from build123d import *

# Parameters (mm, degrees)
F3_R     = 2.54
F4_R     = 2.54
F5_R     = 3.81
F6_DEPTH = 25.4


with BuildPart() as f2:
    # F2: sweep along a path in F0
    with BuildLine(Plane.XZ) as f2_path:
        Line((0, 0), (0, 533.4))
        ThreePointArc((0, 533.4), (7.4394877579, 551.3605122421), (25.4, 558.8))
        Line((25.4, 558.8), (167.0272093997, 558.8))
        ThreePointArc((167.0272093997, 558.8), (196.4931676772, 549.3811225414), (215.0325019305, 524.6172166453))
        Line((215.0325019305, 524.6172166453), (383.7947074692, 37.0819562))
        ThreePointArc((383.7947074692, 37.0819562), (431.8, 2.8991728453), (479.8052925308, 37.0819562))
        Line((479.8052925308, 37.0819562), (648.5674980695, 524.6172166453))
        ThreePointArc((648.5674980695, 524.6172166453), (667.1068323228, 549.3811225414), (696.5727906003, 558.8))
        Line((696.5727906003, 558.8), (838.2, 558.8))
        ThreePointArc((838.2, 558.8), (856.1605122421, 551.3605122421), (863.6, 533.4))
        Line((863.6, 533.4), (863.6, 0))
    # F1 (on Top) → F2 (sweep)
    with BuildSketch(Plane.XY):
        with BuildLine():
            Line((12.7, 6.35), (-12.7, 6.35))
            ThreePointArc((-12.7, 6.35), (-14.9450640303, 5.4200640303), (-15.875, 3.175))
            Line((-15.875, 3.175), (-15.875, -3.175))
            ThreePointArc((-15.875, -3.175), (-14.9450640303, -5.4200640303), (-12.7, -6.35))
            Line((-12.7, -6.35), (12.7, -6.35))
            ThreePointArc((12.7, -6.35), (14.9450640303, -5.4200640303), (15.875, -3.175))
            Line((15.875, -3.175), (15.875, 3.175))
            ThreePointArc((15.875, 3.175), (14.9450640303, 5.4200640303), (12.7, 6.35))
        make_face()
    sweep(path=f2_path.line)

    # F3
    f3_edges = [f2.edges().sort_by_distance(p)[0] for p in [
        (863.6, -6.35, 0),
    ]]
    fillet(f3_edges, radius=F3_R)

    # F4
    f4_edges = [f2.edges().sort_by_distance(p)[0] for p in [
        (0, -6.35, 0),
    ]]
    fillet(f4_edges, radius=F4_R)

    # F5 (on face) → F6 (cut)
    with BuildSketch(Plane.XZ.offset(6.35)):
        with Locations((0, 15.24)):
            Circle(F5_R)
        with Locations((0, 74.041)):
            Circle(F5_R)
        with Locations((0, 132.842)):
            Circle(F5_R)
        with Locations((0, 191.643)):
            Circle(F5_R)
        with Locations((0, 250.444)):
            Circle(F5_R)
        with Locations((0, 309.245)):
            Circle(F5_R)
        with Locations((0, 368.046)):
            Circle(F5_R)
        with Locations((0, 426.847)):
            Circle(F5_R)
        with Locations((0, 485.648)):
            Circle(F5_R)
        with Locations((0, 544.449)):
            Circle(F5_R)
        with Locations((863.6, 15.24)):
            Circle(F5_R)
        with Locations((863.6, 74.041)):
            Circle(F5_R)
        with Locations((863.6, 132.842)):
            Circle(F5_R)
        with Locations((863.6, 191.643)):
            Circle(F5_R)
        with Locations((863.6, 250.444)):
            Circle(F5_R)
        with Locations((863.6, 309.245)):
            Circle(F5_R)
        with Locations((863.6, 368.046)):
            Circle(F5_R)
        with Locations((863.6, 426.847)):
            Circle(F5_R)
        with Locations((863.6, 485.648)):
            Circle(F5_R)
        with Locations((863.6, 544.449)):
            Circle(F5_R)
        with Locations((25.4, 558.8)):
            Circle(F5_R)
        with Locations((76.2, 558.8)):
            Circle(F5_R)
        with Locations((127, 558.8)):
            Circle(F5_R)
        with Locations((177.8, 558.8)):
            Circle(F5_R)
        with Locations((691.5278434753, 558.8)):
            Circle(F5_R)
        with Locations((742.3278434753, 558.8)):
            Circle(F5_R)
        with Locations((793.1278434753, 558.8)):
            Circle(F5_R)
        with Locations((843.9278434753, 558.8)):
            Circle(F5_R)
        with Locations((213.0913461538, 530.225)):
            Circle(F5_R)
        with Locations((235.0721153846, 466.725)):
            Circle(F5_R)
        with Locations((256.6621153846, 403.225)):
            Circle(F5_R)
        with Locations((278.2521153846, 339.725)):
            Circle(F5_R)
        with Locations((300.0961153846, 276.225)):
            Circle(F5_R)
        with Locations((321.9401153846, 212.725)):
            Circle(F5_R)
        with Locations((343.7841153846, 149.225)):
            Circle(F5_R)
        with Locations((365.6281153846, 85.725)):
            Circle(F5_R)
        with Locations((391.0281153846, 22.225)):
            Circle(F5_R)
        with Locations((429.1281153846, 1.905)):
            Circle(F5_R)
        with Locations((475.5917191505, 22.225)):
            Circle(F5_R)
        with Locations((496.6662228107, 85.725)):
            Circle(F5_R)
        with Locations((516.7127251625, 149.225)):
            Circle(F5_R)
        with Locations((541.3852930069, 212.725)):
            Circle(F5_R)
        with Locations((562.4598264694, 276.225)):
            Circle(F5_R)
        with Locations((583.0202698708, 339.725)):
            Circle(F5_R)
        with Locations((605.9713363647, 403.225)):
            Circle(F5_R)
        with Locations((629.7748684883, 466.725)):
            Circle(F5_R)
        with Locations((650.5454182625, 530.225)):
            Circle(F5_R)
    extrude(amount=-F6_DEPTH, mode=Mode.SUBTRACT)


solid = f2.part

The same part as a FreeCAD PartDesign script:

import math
import FreeCAD as App
import Part
import Sketcher
Q = App.Units.Quantity


def edges_at(feature, points):
    """Names of the edges that pass closest to the given points."""
    edges = feature.Shape.Edges
    near = lambda p: min(range(len(edges)), key=lambda i: edges[i].distToShape(Part.Vertex(*p))[0])
    return sorted({f"Edge{near(p) + 1}" for p in points})

doc = App.newDocument("Part")
params = doc.addObject("Spreadsheet::Sheet", "Params")
for row, (alias, value) in enumerate([
    ("sketch1_width", "1 in"),
    ("sketch1_radius", "0.125 in"),
    ("sketch1_height", "0.25 in"),
    ("sketch2_radius", "1 in"),
    ("sketch2_radius2", "2 in"),
    ("sketch2_radius3", "2 in"),
    ("sketch2_radius4", "2 in"),
    ("sketch2_radius5", "1 in"),
    ("fillet_radius", "0.1 in"),
    ("fillet2_radius", "0.1 in"),
    ("sketch3_diameter", "0.3 in"),
    ("pocket1_length", "1 in"),
], start=1):
    params.set(f"A{row}", alias)
    params.set(f"B{row}", "=" + value)
    params.setAlias(f"B{row}", alias)

body = doc.addObject("PartDesign::Body", "Body")

# Sketch on XY plane
sketch1 = body.newObject("Sketcher::SketchObject", "Sketch")
sketch1.AttachmentSupport = (doc.getObject("XY_Plane"), [""])
sketch1.MapMode = "FlatFace"
sketch1.addGeometry(Part.LineSegment(App.Vector(12.7, 6.35, 0), App.Vector(-12.7, 6.35, 0)), False)
sketch1.addGeometry(Part.ArcOfCircle(Part.Circle(App.Vector(-12.7, 3.175, 0), App.Vector(0, 0, 1), 3.175), math.radians(90), math.radians(180)), False)
sketch1.addGeometry(Part.LineSegment(App.Vector(-15.875, 3.175, 0), App.Vector(-15.875, -3.175, 0)), False)
sketch1.addGeometry(Part.ArcOfCircle(Part.Circle(App.Vector(-12.7, -3.175, 0), App.Vector(0, 0, 1), 3.175), math.radians(180), math.radians(270)), False)
sketch1.addGeometry(Part.LineSegment(App.Vector(-12.7, -6.35, 0), App.Vector(12.7, -6.35, 0)), False)
sketch1.addGeometry(Part.ArcOfCircle(Part.Circle(App.Vector(12.7, -3.175, 0), App.Vector(0, 0, 1), 3.175), math.radians(-90), math.radians(0)), False)
sketch1.addGeometry(Part.LineSegment(App.Vector(15.875, -3.175, 0), App.Vector(15.875, 3.175, 0)), False)
sketch1.addGeometry(Part.ArcOfCircle(Part.Circle(App.Vector(12.7, 3.175, 0), App.Vector(0, 0, 1), 3.175), math.radians(0), math.radians(90)), False)
sketch1.addConstraint(Sketcher.Constraint("Tangent", 0, 2, 1, 1))
sketch1.addConstraint(Sketcher.Constraint("Tangent", 1, 2, 2, 1))
sketch1.addConstraint(Sketcher.Constraint("Tangent", 2, 2, 3, 1))
sketch1.addConstraint(Sketcher.Constraint("Tangent", 3, 2, 4, 1))
sketch1.addConstraint(Sketcher.Constraint("Tangent", 4, 2, 5, 1))
sketch1.addConstraint(Sketcher.Constraint("Tangent", 5, 2, 6, 1))
sketch1.addConstraint(Sketcher.Constraint("Tangent", 6, 2, 7, 1))
sketch1.addConstraint(Sketcher.Constraint("Tangent", 7, 2, 0, 1))
sketch1.addConstraint(Sketcher.Constraint("Horizontal", 0))
sketch1.addConstraint(Sketcher.Constraint("Vertical", 2))
sketch1.addConstraint(Sketcher.Constraint("Horizontal", 4))
sketch1.addConstraint(Sketcher.Constraint("Vertical", 6))
sketch1.addConstraint(Sketcher.Constraint("Equal", 1, 3))
sketch1.addConstraint(Sketcher.Constraint("Equal", 3, 5))
sketch1.addConstraint(Sketcher.Constraint("Equal", 5, 7))
sketch1.addConstraint(Sketcher.Constraint("Symmetric", 1, 3, 5, 3, -1, 1))
sketch1.addConstraint(Sketcher.Constraint("DistanceX", 0, 2, 0, 1, Q("1 in")))
sketch1.addConstraint(Sketcher.Constraint("Radius", 1, Q("0.125 in")))
sketch1.addConstraint(Sketcher.Constraint("DistanceY", 2, 2, 2, 1, Q("0.25 in")))
sketch1.setExpression("Constraints[16]", "Params.sketch1_width")
sketch1.setExpression("Constraints[17]", "Params.sketch1_radius")
sketch1.setExpression("Constraints[18]", "Params.sketch1_height")

# Sketch on XZ plane
sketch2 = body.newObject("Sketcher::SketchObject", "Sketch001")
sketch2.AttachmentSupport = (doc.getObject("XZ_Plane"), [""])
sketch2.MapMode = "FlatFace"
sketch2.addGeometry(Part.LineSegment(App.Vector(0, 0, 0), App.Vector(0, 533.4, 0)), False)
sketch2.addGeometry(Part.ArcOfCircle(Part.Circle(App.Vector(25.4, 533.4, 0), App.Vector(0, 0, 1), 25.4), math.radians(90), math.radians(180)), False)
sketch2.addGeometry(Part.LineSegment(App.Vector(25.4, 558.8, 0), App.Vector(167.027209, 558.8, 0)), False)
sketch2.addGeometry(Part.ArcOfCircle(Part.Circle(App.Vector(167.027209, 508, 0), App.Vector(0, 0, 1), 50.8), math.radians(19.093492), math.radians(90)), False)
sketch2.addGeometry(Part.LineSegment(App.Vector(215.032502, 524.617217, 0), App.Vector(383.794707, 37.081956, 0)), False)
sketch2.addGeometry(Part.ArcOfCircle(Part.Circle(App.Vector(431.8, 53.699173, 0), App.Vector(0, 0, 1), 50.8), math.radians(-160.906508), math.radians(-19.093492)), False)
sketch2.addGeometry(Part.LineSegment(App.Vector(479.805293, 37.081956, 0), App.Vector(648.567498, 524.617217, 0)), False)
sketch2.addGeometry(Part.ArcOfCircle(Part.Circle(App.Vector(696.572791, 508, 0), App.Vector(0, 0, 1), 50.8), math.radians(90), math.radians(160.906508)), False)
sketch2.addGeometry(Part.LineSegment(App.Vector(696.572791, 558.8, 0), App.Vector(838.2, 558.8, 0)), False)
sketch2.addGeometry(Part.ArcOfCircle(Part.Circle(App.Vector(838.2, 533.4, 0), App.Vector(0, 0, 1), 25.4), math.radians(0), math.radians(90)), False)
sketch2.addGeometry(Part.LineSegment(App.Vector(863.6, 533.4, 0), App.Vector(863.6, 0, 0)), False)
sketch2.addConstraint(Sketcher.Constraint("Coincident", 0, 2, 1, 2))
sketch2.addConstraint(Sketcher.Constraint("Coincident", 1, 1, 2, 1))
sketch2.addConstraint(Sketcher.Constraint("Coincident", 2, 2, 3, 2))
sketch2.addConstraint(Sketcher.Constraint("Coincident", 3, 1, 4, 1))
sketch2.addConstraint(Sketcher.Constraint("Coincident", 4, 2, 5, 1))
sketch2.addConstraint(Sketcher.Constraint("Coincident", 5, 2, 6, 1))
sketch2.addConstraint(Sketcher.Constraint("Coincident", 6, 2, 7, 2))
sketch2.addConstraint(Sketcher.Constraint("Coincident", 7, 1, 8, 1))
sketch2.addConstraint(Sketcher.Constraint("Coincident", 8, 2, 9, 2))
sketch2.addConstraint(Sketcher.Constraint("Coincident", 9, 1, 10, 1))
sketch2.addConstraint(Sketcher.Constraint("Vertical", 0))
sketch2.addConstraint(Sketcher.Constraint("Horizontal", 2))
sketch2.addConstraint(Sketcher.Constraint("Horizontal", 8))
sketch2.addConstraint(Sketcher.Constraint("Vertical", 10))
sketch2.addConstraint(Sketcher.Constraint("Coincident", 0, 1, -1, 1))
sketch2.addConstraint(Sketcher.Constraint("PointOnObject", 10, 2, -1))
sketch2.addConstraint(Sketcher.Constraint("Radius", 1, Q("1 in")))
sketch2.addConstraint(Sketcher.Constraint("Radius", 3, Q("2 in")))
sketch2.addConstraint(Sketcher.Constraint("Radius", 5, Q("2 in")))
sketch2.addConstraint(Sketcher.Constraint("Radius", 7, Q("2 in")))
sketch2.addConstraint(Sketcher.Constraint("Radius", 9, Q("1 in")))
sketch2.addConstraint(Sketcher.Constraint("DistanceY", 0, 1, 0, 2, Q("21 in")))
sketch2.addConstraint(Sketcher.Constraint("DistanceY", 10, 2, 10, 1, Q("21 in")))
sketch2.addConstraint(Sketcher.Constraint("DistanceY", -1, 1, 1, 3, Q("21 in")))
sketch2.addConstraint(Sketcher.Constraint("DistanceX", -1, 1, 5, 3, Q("17 in")))
sketch2.addConstraint(Sketcher.Constraint("DistanceY", -1, 1, 7, 3, Q("20 in")))
sketch2.addConstraint(Sketcher.Constraint("DistanceX", -1, 1, 9, 3, Q("33 in")))
sketch2.addConstraint(Sketcher.Constraint("DistanceX", -1, 1, 1, 1, Q("1 in")))
sketch2.addConstraint(Sketcher.Constraint("DistanceX", -1, 1, 8, 2, Q("33 in")))
sketch2.addConstraint(Sketcher.Constraint("DistanceX", 2, 1, 2, 2, Q("141.627209 mm")))
sketch2.addConstraint(Sketcher.Constraint("DistanceX", 8, 1, 8, 2, Q("141.627209 mm")))
sketch2.addConstraint(Sketcher.Constraint("DistanceX", -1, 1, 3, 1, Q("215.032502 mm")))
sketch2.addConstraint(Sketcher.Constraint("DistanceX", -1, 1, 6, 2, Q("648.567498 mm")))
sketch2.addConstraint(Sketcher.Constraint("DistanceX", 3, 3, 4, 2, Q("216.767498 mm")))
sketch2.addConstraint(Sketcher.Constraint("DistanceX", 2, 2, 4, 2, Q("216.767498 mm")))
sketch2.addConstraint(Sketcher.Constraint("DistanceX", 5, 2, 7, 3, Q("216.767498 mm")))
sketch2.addConstraint(Sketcher.Constraint("Distance", 4, Q("515.917932 mm")))
sketch2.addConstraint(Sketcher.Constraint("Distance", 6, Q("515.917932 mm")))
sketch2.setExpression("Constraints[16]", "Params.sketch2_radius")
sketch2.setExpression("Constraints[17]", "Params.sketch2_radius2")
sketch2.setExpression("Constraints[18]", "Params.sketch2_radius3")
sketch2.setExpression("Constraints[19]", "Params.sketch2_radius4")
sketch2.setExpression("Constraints[20]", "Params.sketch2_radius5")
doc.recompute()

additivepipe = body.newObject("PartDesign::AdditivePipe", "AdditivePipe")
additivepipe.Profile = sketch1
additivepipe.Spine = (sketch2, ["Edge1", "Edge2", "Edge3", "Edge4", "Edge5", "Edge6", "Edge7", "Edge8", "Edge9", "Edge10", "Edge11"])
doc.recompute()

fillet = body.newObject("PartDesign::Fillet", "Fillet")
fillet.Base = (additivepipe, edges_at(additivepipe, [(863.6, -6.35, 0)]))
fillet.setExpression("Radius", "Params.fillet_radius")
doc.recompute()

fillet2 = body.newObject("PartDesign::Fillet", "Fillet001")
fillet2.Base = (fillet, edges_at(fillet, [(0, -6.35, 0)]))
fillet2.setExpression("Radius", "Params.fillet2_radius")

# Sketch on XZ plane
sketch3 = body.newObject("Sketcher::SketchObject", "Sketch002")
sketch3.AttachmentSupport = (doc.getObject("XZ_Plane"), [""])
sketch3.MapMode = "FlatFace"
sketch3.AttachmentOffset = App.Placement(App.Vector(0, 0, 0.25 * 25.4), App.Rotation())
sketch3.addGeometry(Part.Circle(App.Vector(0, 15.24, 0), App.Vector(0, 0, 1), 3.81), False)
sketch3.addGeometry(Part.Circle(App.Vector(0, 74.041, 0), App.Vector(0, 0, 1), 3.81), False)
sketch3.addGeometry(Part.Circle(App.Vector(0, 132.842, 0), App.Vector(0, 0, 1), 3.81), False)
sketch3.addGeometry(Part.Circle(App.Vector(0, 191.643, 0), App.Vector(0, 0, 1), 3.81), False)
sketch3.addGeometry(Part.Circle(App.Vector(0, 250.444, 0), App.Vector(0, 0, 1), 3.81), False)
sketch3.addGeometry(Part.Circle(App.Vector(0, 309.245, 0), App.Vector(0, 0, 1), 3.81), False)
sketch3.addGeometry(Part.Circle(App.Vector(0, 368.046, 0), App.Vector(0, 0, 1), 3.81), False)
sketch3.addGeometry(Part.Circle(App.Vector(0, 426.847, 0), App.Vector(0, 0, 1), 3.81), False)
sketch3.addGeometry(Part.Circle(App.Vector(0, 485.648, 0), App.Vector(0, 0, 1), 3.81), False)
sketch3.addGeometry(Part.Circle(App.Vector(0, 544.449, 0), App.Vector(0, 0, 1), 3.81), False)
sketch3.addGeometry(Part.Circle(App.Vector(863.6, 15.24, 0), App.Vector(0, 0, 1), 3.81), False)
sketch3.addGeometry(Part.Circle(App.Vector(863.6, 74.041, 0), App.Vector(0, 0, 1), 3.81), False)
sketch3.addGeometry(Part.Circle(App.Vector(863.6, 132.842, 0), App.Vector(0, 0, 1), 3.81), False)
sketch3.addGeometry(Part.Circle(App.Vector(863.6, 191.643, 0), App.Vector(0, 0, 1), 3.81), False)
sketch3.addGeometry(Part.Circle(App.Vector(863.6, 250.444, 0), App.Vector(0, 0, 1), 3.81), False)
sketch3.addGeometry(Part.Circle(App.Vector(863.6, 309.245, 0), App.Vector(0, 0, 1), 3.81), False)
sketch3.addGeometry(Part.Circle(App.Vector(863.6, 368.046, 0), App.Vector(0, 0, 1), 3.81), False)
sketch3.addGeometry(Part.Circle(App.Vector(863.6, 426.847, 0), App.Vector(0, 0, 1), 3.81), False)
sketch3.addGeometry(Part.Circle(App.Vector(863.6, 485.648, 0), App.Vector(0, 0, 1), 3.81), False)
sketch3.addGeometry(Part.Circle(App.Vector(863.6, 544.449, 0), App.Vector(0, 0, 1), 3.81), False)
sketch3.addGeometry(Part.Circle(App.Vector(25.4, 558.8, 0), App.Vector(0, 0, 1), 3.81), False)
sketch3.addGeometry(Part.Circle(App.Vector(76.2, 558.8, 0), App.Vector(0, 0, 1), 3.81), False)
sketch3.addGeometry(Part.Circle(App.Vector(127, 558.8, 0), App.Vector(0, 0, 1), 3.81), False)
sketch3.addGeometry(Part.Circle(App.Vector(177.8, 558.8, 0), App.Vector(0, 0, 1), 3.81), False)
sketch3.addGeometry(Part.Circle(App.Vector(691.527843, 558.8, 0), App.Vector(0, 0, 1), 3.81), False)
sketch3.addGeometry(Part.Circle(App.Vector(742.327843, 558.8, 0), App.Vector(0, 0, 1), 3.81), False)
sketch3.addGeometry(Part.Circle(App.Vector(793.127843, 558.8, 0), App.Vector(0, 0, 1), 3.81), False)
sketch3.addGeometry(Part.Circle(App.Vector(843.927843, 558.8, 0), App.Vector(0, 0, 1), 3.81), False)
sketch3.addGeometry(Part.Circle(App.Vector(213.091346, 530.225, 0), App.Vector(0, 0, 1), 3.81), False)
sketch3.addGeometry(Part.Circle(App.Vector(235.072115, 466.725, 0), App.Vector(0, 0, 1), 3.81), False)
sketch3.addGeometry(Part.Circle(App.Vector(256.662115, 403.225, 0), App.Vector(0, 0, 1), 3.81), False)
sketch3.addGeometry(Part.Circle(App.Vector(278.252115, 339.725, 0), App.Vector(0, 0, 1), 3.81), False)
sketch3.addGeometry(Part.Circle(App.Vector(300.096115, 276.225, 0), App.Vector(0, 0, 1), 3.81), False)
sketch3.addGeometry(Part.Circle(App.Vector(321.940115, 212.725, 0), App.Vector(0, 0, 1), 3.81), False)
sketch3.addGeometry(Part.Circle(App.Vector(343.784115, 149.225, 0), App.Vector(0, 0, 1), 3.81), False)
sketch3.addGeometry(Part.Circle(App.Vector(365.628115, 85.725, 0), App.Vector(0, 0, 1), 3.81), False)
sketch3.addGeometry(Part.Circle(App.Vector(391.028115, 22.225, 0), App.Vector(0, 0, 1), 3.81), False)
sketch3.addGeometry(Part.Circle(App.Vector(429.128115, 1.905, 0), App.Vector(0, 0, 1), 3.81), False)
sketch3.addGeometry(Part.Circle(App.Vector(475.591719, 22.225, 0), App.Vector(0, 0, 1), 3.81), False)
sketch3.addGeometry(Part.Circle(App.Vector(496.666223, 85.725, 0), App.Vector(0, 0, 1), 3.81), False)
sketch3.addGeometry(Part.Circle(App.Vector(516.712725, 149.225, 0), App.Vector(0, 0, 1), 3.81), False)
sketch3.addGeometry(Part.Circle(App.Vector(541.385293, 212.725, 0), App.Vector(0, 0, 1), 3.81), False)
sketch3.addGeometry(Part.Circle(App.Vector(562.459826, 276.225, 0), App.Vector(0, 0, 1), 3.81), False)
sketch3.addGeometry(Part.Circle(App.Vector(583.02027, 339.725, 0), App.Vector(0, 0, 1), 3.81), False)
sketch3.addGeometry(Part.Circle(App.Vector(605.971336, 403.225, 0), App.Vector(0, 0, 1), 3.81), False)
sketch3.addGeometry(Part.Circle(App.Vector(629.774868, 466.725, 0), App.Vector(0, 0, 1), 3.81), False)
sketch3.addGeometry(Part.Circle(App.Vector(650.545418, 530.225, 0), App.Vector(0, 0, 1), 3.81), False)
sketch3.addConstraint(Sketcher.Constraint("Equal", 0, 1))
sketch3.addConstraint(Sketcher.Constraint("Equal", 1, 2))
sketch3.addConstraint(Sketcher.Constraint("Equal", 2, 3))
sketch3.addConstraint(Sketcher.Constraint("Equal", 3, 4))
sketch3.addConstraint(Sketcher.Constraint("Equal", 4, 5))
sketch3.addConstraint(Sketcher.Constraint("Equal", 5, 6))
sketch3.addConstraint(Sketcher.Constraint("Equal", 6, 7))
sketch3.addConstraint(Sketcher.Constraint("Equal", 7, 8))
sketch3.addConstraint(Sketcher.Constraint("Equal", 8, 9))
sketch3.addConstraint(Sketcher.Constraint("Equal", 9, 10))
sketch3.addConstraint(Sketcher.Constraint("Equal", 10, 11))
sketch3.addConstraint(Sketcher.Constraint("Equal", 11, 12))
sketch3.addConstraint(Sketcher.Constraint("Equal", 12, 13))
sketch3.addConstraint(Sketcher.Constraint("Equal", 13, 14))
sketch3.addConstraint(Sketcher.Constraint("Equal", 14, 15))
sketch3.addConstraint(Sketcher.Constraint("Equal", 15, 16))
sketch3.addConstraint(Sketcher.Constraint("Equal", 16, 17))
sketch3.addConstraint(Sketcher.Constraint("Equal", 17, 18))
sketch3.addConstraint(Sketcher.Constraint("Equal", 18, 19))
sketch3.addConstraint(Sketcher.Constraint("Equal", 19, 20))
sketch3.addConstraint(Sketcher.Constraint("Equal", 20, 21))
sketch3.addConstraint(Sketcher.Constraint("Equal", 21, 22))
sketch3.addConstraint(Sketcher.Constraint("Equal", 22, 23))
sketch3.addConstraint(Sketcher.Constraint("Equal", 23, 24))
sketch3.addConstraint(Sketcher.Constraint("Equal", 24, 25))
sketch3.addConstraint(Sketcher.Constraint("Equal", 25, 26))
sketch3.addConstraint(Sketcher.Constraint("Equal", 26, 27))
sketch3.addConstraint(Sketcher.Constraint("Equal", 27, 28))
sketch3.addConstraint(Sketcher.Constraint("Equal", 28, 29))
sketch3.addConstraint(Sketcher.Constraint("Equal", 29, 30))
sketch3.addConstraint(Sketcher.Constraint("Equal", 30, 31))
sketch3.addConstraint(Sketcher.Constraint("Equal", 31, 32))
sketch3.addConstraint(Sketcher.Constraint("Equal", 32, 33))
sketch3.addConstraint(Sketcher.Constraint("Equal", 33, 34))
sketch3.addConstraint(Sketcher.Constraint("Equal", 34, 35))
sketch3.addConstraint(Sketcher.Constraint("Equal", 35, 36))
sketch3.addConstraint(Sketcher.Constraint("Equal", 36, 37))
sketch3.addConstraint(Sketcher.Constraint("Equal", 37, 38))
sketch3.addConstraint(Sketcher.Constraint("Equal", 38, 39))
sketch3.addConstraint(Sketcher.Constraint("Equal", 39, 40))
sketch3.addConstraint(Sketcher.Constraint("Equal", 40, 41))
sketch3.addConstraint(Sketcher.Constraint("Equal", 41, 42))
sketch3.addConstraint(Sketcher.Constraint("Equal", 42, 43))
sketch3.addConstraint(Sketcher.Constraint("Equal", 43, 44))
sketch3.addConstraint(Sketcher.Constraint("Equal", 44, 45))
sketch3.addConstraint(Sketcher.Constraint("Equal", 45, 46))
sketch3.addConstraint(Sketcher.Constraint("PointOnObject", 0, 3, -2))
sketch3.addConstraint(Sketcher.Constraint("PointOnObject", 1, 3, -2))
sketch3.addConstraint(Sketcher.Constraint("PointOnObject", 2, 3, -2))
sketch3.addConstraint(Sketcher.Constraint("PointOnObject", 3, 3, -2))
sketch3.addConstraint(Sketcher.Constraint("PointOnObject", 4, 3, -2))
sketch3.addConstraint(Sketcher.Constraint("PointOnObject", 5, 3, -2))
sketch3.addConstraint(Sketcher.Constraint("PointOnObject", 6, 3, -2))
sketch3.addConstraint(Sketcher.Constraint("PointOnObject", 7, 3, -2))
sketch3.addConstraint(Sketcher.Constraint("PointOnObject", 8, 3, -2))
sketch3.addConstraint(Sketcher.Constraint("PointOnObject", 9, 3, -2))
sketch3.addConstraint(Sketcher.Constraint("Horizontal", 0, 3, 10, 3))
sketch3.addConstraint(Sketcher.Constraint("Horizontal", 1, 3, 11, 3))
sketch3.addConstraint(Sketcher.Constraint("Horizontal", 2, 3, 12, 3))
sketch3.addConstraint(Sketcher.Constraint("Horizontal", 3, 3, 13, 3))
sketch3.addConstraint(Sketcher.Constraint("Horizontal", 4, 3, 14, 3))
sketch3.addConstraint(Sketcher.Constraint("Horizontal", 5, 3, 15, 3))
sketch3.addConstraint(Sketcher.Constraint("Horizontal", 6, 3, 16, 3))
sketch3.addConstraint(Sketcher.Constraint("Horizontal", 7, 3, 17, 3))
sketch3.addConstraint(Sketcher.Constraint("Horizontal", 8, 3, 18, 3))
sketch3.addConstraint(Sketcher.Constraint("Horizontal", 9, 3, 19, 3))
sketch3.addConstraint(Sketcher.Constraint("Horizontal", 20, 3, 21, 3))
sketch3.addConstraint(Sketcher.Constraint("Horizontal", 21, 3, 22, 3))
sketch3.addConstraint(Sketcher.Constraint("Horizontal", 22, 3, 23, 3))
sketch3.addConstraint(Sketcher.Constraint("Horizontal", 23, 3, 24, 3))
sketch3.addConstraint(Sketcher.Constraint("Horizontal", 24, 3, 25, 3))
sketch3.addConstraint(Sketcher.Constraint("Horizontal", 25, 3, 26, 3))
sketch3.addConstraint(Sketcher.Constraint("Horizontal", 26, 3, 27, 3))
sketch3.addConstraint(Sketcher.Constraint("Horizontal", 36, 3, 38, 3))
sketch3.addConstraint(Sketcher.Constraint("Horizontal", 35, 3, 39, 3))
sketch3.addConstraint(Sketcher.Constraint("Horizontal", 34, 3, 40, 3))
sketch3.addConstraint(Sketcher.Constraint("Horizontal", 33, 3, 41, 3))
sketch3.addConstraint(Sketcher.Constraint("Horizontal", 32, 3, 42, 3))
sketch3.addConstraint(Sketcher.Constraint("Horizontal", 31, 3, 43, 3))
sketch3.addConstraint(Sketcher.Constraint("Horizontal", 30, 3, 44, 3))
sketch3.addConstraint(Sketcher.Constraint("Horizontal", 29, 3, 45, 3))
sketch3.addConstraint(Sketcher.Constraint("Horizontal", 28, 3, 46, 3))
sketch3.addConstraint(Sketcher.Constraint("Vertical", 10, 3, 11, 3))
sketch3.addConstraint(Sketcher.Constraint("Vertical", 11, 3, 12, 3))
sketch3.addConstraint(Sketcher.Constraint("Vertical", 12, 3, 13, 3))
sketch3.addConstraint(Sketcher.Constraint("Vertical", 13, 3, 14, 3))
sketch3.addConstraint(Sketcher.Constraint("Vertical", 14, 3, 15, 3))
sketch3.addConstraint(Sketcher.Constraint("Vertical", 15, 3, 16, 3))
sketch3.addConstraint(Sketcher.Constraint("Vertical", 16, 3, 17, 3))
sketch3.addConstraint(Sketcher.Constraint("Vertical", 17, 3, 18, 3))
sketch3.addConstraint(Sketcher.Constraint("Vertical", 18, 3, 19, 3))
sketch3.addConstraint(Sketcher.Constraint("Diameter", 0, Q("0.3 in")))
sketch3.addConstraint(Sketcher.Constraint("DistanceX", -1, 1, 10, 3, Q("34 in")))
sketch3.addConstraint(Sketcher.Constraint("DistanceX", -1, 1, 20, 3, Q("1 in")))
sketch3.addConstraint(Sketcher.Constraint("DistanceY", -1, 1, 20, 3, Q("22 in")))
sketch3.addConstraint(Sketcher.Constraint("DistanceX", -1, 1, 21, 3, Q("3 in")))
sketch3.addConstraint(Sketcher.Constraint("DistanceX", -1, 1, 22, 3, Q("5 in")))
sketch3.addConstraint(Sketcher.Constraint("DistanceX", -1, 1, 23, 3, Q("7 in")))
sketch3.addConstraint(Sketcher.Constraint("DistanceX", 24, 3, 25, 3, Q("2 in")))
sketch3.addConstraint(Sketcher.Constraint("DistanceX", 25, 3, 26, 3, Q("2 in")))
sketch3.addConstraint(Sketcher.Constraint("DistanceX", 26, 3, 27, 3, Q("2 in")))
sketch3.addConstraint(Sketcher.Constraint("DistanceY", 30, 3, 28, 3, Q("5 in")))
sketch3.addConstraint(Sketcher.Constraint("DistanceY", 31, 3, 29, 3, Q("5 in")))
sketch3.addConstraint(Sketcher.Constraint("DistanceY", 32, 3, 30, 3, Q("5 in")))
sketch3.addConstraint(Sketcher.Constraint("DistanceY", 33, 3, 31, 3, Q("5 in")))
sketch3.addConstraint(Sketcher.Constraint("DistanceY", 34, 3, 32, 3, Q("5 in")))
sketch3.addConstraint(Sketcher.Constraint("DistanceY", 35, 3, 33, 3, Q("5 in")))
sketch3.addConstraint(Sketcher.Constraint("DistanceX", 35, 3, 36, 3, Q("1 in")))
sketch3.addConstraint(Sketcher.Constraint("DistanceY", 36, 3, 34, 3, Q("5 in")))
sketch3.addConstraint(Sketcher.Constraint("DistanceY", -1, 1, 0, 3, Q("0.6 in")))
sketch3.addConstraint(Sketcher.Constraint("DistanceY", 29, 3, 28, 3, Q("2.5 in")))
sketch3.addConstraint(Sketcher.Constraint("DistanceX", 29, 3, 31, 3, Q("1.7 in")))
sketch3.addConstraint(Sketcher.Constraint("DistanceX", 36, 3, 37, 3, Q("1.5 in")))
sketch3.addConstraint(Sketcher.Constraint("DistanceY", 37, 3, 36, 3, Q("0.8 in")))
sketch3.addConstraint(Sketcher.Constraint("DistanceY", -1, 1, 2, 3, Q("5.23 in")))
sketch3.addConstraint(Sketcher.Constraint("DistanceY", -1, 1, 4, 3, Q("9.86 in")))
sketch3.addConstraint(Sketcher.Constraint("DistanceY", -1, 1, 6, 3, Q("14.49 in")))
sketch3.addConstraint(Sketcher.Constraint("DistanceY", -1, 1, 8, 3, Q("19.12 in")))
sketch3.addConstraint(Sketcher.Constraint("DistanceY", 1, 3, 3, 3, Q("4.63 in")))
sketch3.addConstraint(Sketcher.Constraint("DistanceY", 3, 3, 5, 3, Q("4.63 in")))
sketch3.addConstraint(Sketcher.Constraint("DistanceY", 5, 3, 7, 3, Q("4.63 in")))
sketch3.addConstraint(Sketcher.Constraint("DistanceY", 7, 3, 9, 3, Q("4.63 in")))
sketch3.addConstraint(Sketcher.Constraint("DistanceY", 28, 3, 9, 3, Q("0.56 in")))
sketch3.addConstraint(Sketcher.Constraint("DistanceX", 29, 3, 30, 3, Q("0.85 in")))
sketch3.addConstraint(Sketcher.Constraint("DistanceX", 31, 3, 32, 3, Q("0.86 in")))
sketch3.addConstraint(Sketcher.Constraint("DistanceX", 32, 3, 33, 3, Q("0.86 in")))
sketch3.addConstraint(Sketcher.Constraint("DistanceX", 33, 3, 34, 3, Q("0.86 in")))
sketch3.addConstraint(Sketcher.Constraint("DistanceX", 34, 3, 35, 3, Q("0.86 in")))
sketch3.addConstraint(Sketcher.Constraint("DistanceY", -1, 1, 1, 3, Q("2.915 in")))
sketch3.addConstraint(Sketcher.Constraint("DistanceX", 40, 3, 42, 3, Q("45.747101 mm")))
sketch3.addConstraint(Sketcher.Constraint("DistanceX", 43, 3, 45, 3, Q("46.754599 mm")))
sketch3.addConstraint(Sketcher.Constraint("DistanceX", -1, 1, 38, 3, Q("475.591719 mm")))
sketch3.addConstraint(Sketcher.Constraint("DistanceX", -1, 1, 43, 3, Q("583.02027 mm")))
sketch3.addConstraint(Sketcher.Constraint("DistanceX", -1, 1, 46, 3, Q("650.545418 mm")))
sketch3.addConstraint(Sketcher.Constraint("DistanceX", 28, 3, 29, 3, Q("21.980769 mm")))
sketch3.addConstraint(Sketcher.Constraint("DistanceX", 35, 3, 40, 3, Q("151.08461 mm")))
sketch3.addConstraint(Sketcher.Constraint("DistanceX", 39, 3, 41, 3, Q("44.71907 mm")))
sketch3.addConstraint(Sketcher.Constraint("DistanceX", 42, 3, 44, 3, Q("43.51151 mm")))
sketch3.addConstraint(Sketcher.Constraint("DistanceX", 44, 3, 46, 3, Q("44.574082 mm")))
sketch3.addConstraint(Sketcher.Constraint("DistanceX", -1, 1, 24, 3, Q("691.527843 mm")))
sketch3.addConstraint(Sketcher.Constraint("DistanceX", -1, 1, 39, 3, Q("496.666223 mm")))
sketch3.setExpression("Constraints[91]", "Params.sketch3_diameter")
pocket1 = body.newObject("PartDesign::Pocket", "Pocket")
pocket1.Profile = sketch3
pocket1.setExpression("Length", "Params.pocket1_length")

doc.recompute()
